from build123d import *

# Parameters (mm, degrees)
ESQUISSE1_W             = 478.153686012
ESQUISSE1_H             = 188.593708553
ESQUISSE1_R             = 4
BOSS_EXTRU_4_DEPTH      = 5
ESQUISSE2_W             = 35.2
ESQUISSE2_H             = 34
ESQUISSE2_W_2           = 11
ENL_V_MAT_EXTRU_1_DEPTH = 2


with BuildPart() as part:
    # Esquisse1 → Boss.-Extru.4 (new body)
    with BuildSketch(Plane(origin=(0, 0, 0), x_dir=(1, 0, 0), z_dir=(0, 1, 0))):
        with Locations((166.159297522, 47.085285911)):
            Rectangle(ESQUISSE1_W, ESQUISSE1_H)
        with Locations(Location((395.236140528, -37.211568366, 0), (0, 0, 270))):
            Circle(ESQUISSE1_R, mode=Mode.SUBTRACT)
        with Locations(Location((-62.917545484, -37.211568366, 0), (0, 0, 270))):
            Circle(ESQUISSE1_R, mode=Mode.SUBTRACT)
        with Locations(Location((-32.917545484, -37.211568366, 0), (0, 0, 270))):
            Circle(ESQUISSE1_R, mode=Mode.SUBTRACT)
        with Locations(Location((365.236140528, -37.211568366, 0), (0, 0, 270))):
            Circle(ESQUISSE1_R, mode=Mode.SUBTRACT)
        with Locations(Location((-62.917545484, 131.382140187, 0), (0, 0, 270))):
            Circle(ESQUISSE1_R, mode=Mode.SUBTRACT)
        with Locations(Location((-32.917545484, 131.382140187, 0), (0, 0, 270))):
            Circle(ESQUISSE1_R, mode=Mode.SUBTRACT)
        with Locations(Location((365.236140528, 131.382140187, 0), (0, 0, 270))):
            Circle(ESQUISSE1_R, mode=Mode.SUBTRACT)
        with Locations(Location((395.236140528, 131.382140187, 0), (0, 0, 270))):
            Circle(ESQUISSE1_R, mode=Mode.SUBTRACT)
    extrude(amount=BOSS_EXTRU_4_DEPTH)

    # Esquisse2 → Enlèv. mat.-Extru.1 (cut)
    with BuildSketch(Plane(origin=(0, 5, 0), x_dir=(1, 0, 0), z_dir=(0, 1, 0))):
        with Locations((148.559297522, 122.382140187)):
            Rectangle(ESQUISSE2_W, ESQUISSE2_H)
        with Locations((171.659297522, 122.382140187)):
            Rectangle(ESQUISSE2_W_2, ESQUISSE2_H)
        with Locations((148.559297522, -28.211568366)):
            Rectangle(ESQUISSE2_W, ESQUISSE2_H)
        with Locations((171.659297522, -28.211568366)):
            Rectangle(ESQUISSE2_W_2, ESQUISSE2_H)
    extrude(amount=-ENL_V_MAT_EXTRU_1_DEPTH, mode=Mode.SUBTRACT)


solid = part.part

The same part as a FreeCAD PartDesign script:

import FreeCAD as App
import Part
import Sketcher

V = App.Vector


def add_polygon(sketch, points):
    """Adds a closed chain of lines whose ends are joined by coincident constraints."""
    first, n = sketch.GeometryCount, len(points)
    for a, b in zip(points, points[1:] + points[:1]):
        sketch.addGeometry(Part.LineSegment(App.Vector(*a, 0), App.Vector(*b, 0)), False)
    for i in range(n):
        sketch.addConstraint(Sketcher.Constraint("Coincident", first + i, 2, first + (i + 1) % n, 1))

doc = App.newDocument("Part")
body = doc.addObject("PartDesign::Body", "Body")

sketch1 = body.newObject("Sketcher::SketchObject", "Sketch")
sketch1.AttachmentSupport = (doc.getObject("XZ_Plane"), [""])
sketch1.MapMode = "FlatFace"
add_polygon(sketch1, [(-72.9, -141.4), (-72.9, 47.2), (405.2, 47.2), (405.2, -141.4)])
sketch1.addGeometry(Part.Circle(V(-62.9, 37.2, 0), V(0, 0, 1), 4), False)
sketch1.addGeometry(Part.Circle(V(-32.9, 37.2, 0), V(0, 0, 1), 4), False)
sketch1.addGeometry(Part.Circle(V(365.2, 37.2, 0), V(0, 0, 1), 4), False)
sketch1.addGeometry(Part.Circle(V(395.2, 37.2, 0), V(0, 0, 1), 4), False)
sketch1.addGeometry(Part.Circle(V(-62.9, -131.4, 0), V(0, 0, 1), 4), False)
sketch1.addGeometry(Part.Circle(V(-32.9, -131.4, 0), V(0, 0, 1), 4), False)
sketch1.addGeometry(Part.Circle(V(365.2, -131.4, 0), V(0, 0, 1), 4), False)
sketch1.addGeometry(Part.Circle(V(395.2, -131.4, 0), V(0, 0, 1), 4), False)
sketch1.addConstraint([
    Sketcher.Constraint("Vertical", 0),
    Sketcher.Constraint("Horizontal", 1),
    Sketcher.Constraint("Vertical", 2),
    Sketcher.Constraint("Horizontal", 3),
    Sketcher.Constraint("Equal", 4, 5),
    Sketcher.Constraint("Equal", 5, 6),
    Sketcher.Constraint("Equal", 6, 7),
    Sketcher.Constraint("Equal", 7, 8),
    Sketcher.Constraint("Equal", 8, 9),
    Sketcher.Constraint("Equal", 9, 10),
    Sketcher.Constraint("Equal", 10, 11),
    Sketcher.Constraint("Horizontal", 4, 3, 5, 3),
    Sketcher.Constraint("Horizontal", 5, 3, 6, 3),
    Sketcher.Constraint("Horizontal", 6, 3, 7, 3),
    Sketcher.Constraint("Horizontal", 8, 3, 9, 3),
    Sketcher.Constraint("Horizontal", 9, 3, 10, 3),
    Sketcher.Constraint("Horizontal", 10, 3, 11, 3),
    Sketcher.Constraint("Vertical", 4, 3, 8, 3),
    Sketcher.Constraint("Vertical", 5, 3, 9, 3),
    Sketcher.Constraint("Vertical", 6, 3, 10, 3),
    Sketcher.Constraint("Vertical", 7, 3, 11, 3),
    Sketcher.Constraint("Diameter", 4, 8.0),
    Sketcher.Constraint("DistanceX", 4, 3, 5, 3, 30.0),
    Sketcher.Constraint("DistanceX", 6, 3, 7, 3, 30.0),
    Sketcher.Constraint("DistanceX", 0, 2, 4, 3, 10.0),
    Sketcher.Constraint("DistanceY", 4, 3, 0, 2, 10.0),
    Sketcher.Constraint("DistanceX", 7, 3, 1, 2, 10.0),
    Sketcher.Constraint("DistanceY", 2, 2, 11, 3, 10.0),
    Sketcher.Constraint("DistanceY", 0, 1, 0, 2, 188.593709),
    Sketcher.Constraint("DistanceX", 1, 1, 1, 2, 478.153686),
    Sketcher.Constraint("DistanceY", -1, 1, 4, 3, 37.211568),
    Sketcher.Constraint("DistanceX", -1, 1, 6, 3, 365.236141),
])
pad1 = body.newObject("PartDesign::Pad", "Pad")
pad1.Profile = sketch1
pad1.Length = 5
pad1.Reversed = True

sketch2 = body.newObject("Sketcher::SketchObject", "Sketch001")
sketch2.AttachmentSupport = (doc.getObject("XZ_Plane"), [""])
sketch2.MapMode = "FlatFace"
sketch2.AttachmentOffset = App.Placement(V(0, 0, -5), App.Rotation())
add_polygon(sketch2, [(131, -139), (131, -105), (177, -105), (177, -139)])
add_polygon(sketch2, [(131, 11), (131, 45), (177, 45), (177, 11)])
sketch2.addConstraint([
    Sketcher.Constraint("Vertical", 0),
    Sketcher.Constraint("Horizontal", 1),
    Sketcher.Constraint("Vertical", 2),
    Sketcher.Constraint("Horizontal", 3),
    Sketcher.Constraint("Vertical", 4),
    Sketcher.Constraint("Horizontal", 5),
    Sketcher.Constraint("Vertical", 6),
    Sketcher.Constraint("Horizontal", 7),
    Sketcher.Constraint("Vertical", 3, 2, 4, 2),
    Sketcher.Constraint("Vertical", 2, 2, 5, 2),
    Sketcher.Constraint("Equal", 2, 4),
    Sketcher.Constraint("DistanceY", 0, 1, 0, 2, 34.0),
    Sketcher.Constraint("DistanceX", 1, 1, 1, 2, 46.2),
    Sketcher.Constraint("DistanceY", 0, 2, -1, 1, 105.38214),
    Sketcher.Constraint("DistanceY", -1, 1, 4, 2, 45.211568),
    Sketcher.Constraint("DistanceX", -1, 1, 0, 2, 130.959298),
])
pocket1 = body.newObject("PartDesign::Pocket", "Pocket")
pocket1.Profile = sketch2
pocket1.Length = 2
pocket1.Reversed = True

doc.recompute()
